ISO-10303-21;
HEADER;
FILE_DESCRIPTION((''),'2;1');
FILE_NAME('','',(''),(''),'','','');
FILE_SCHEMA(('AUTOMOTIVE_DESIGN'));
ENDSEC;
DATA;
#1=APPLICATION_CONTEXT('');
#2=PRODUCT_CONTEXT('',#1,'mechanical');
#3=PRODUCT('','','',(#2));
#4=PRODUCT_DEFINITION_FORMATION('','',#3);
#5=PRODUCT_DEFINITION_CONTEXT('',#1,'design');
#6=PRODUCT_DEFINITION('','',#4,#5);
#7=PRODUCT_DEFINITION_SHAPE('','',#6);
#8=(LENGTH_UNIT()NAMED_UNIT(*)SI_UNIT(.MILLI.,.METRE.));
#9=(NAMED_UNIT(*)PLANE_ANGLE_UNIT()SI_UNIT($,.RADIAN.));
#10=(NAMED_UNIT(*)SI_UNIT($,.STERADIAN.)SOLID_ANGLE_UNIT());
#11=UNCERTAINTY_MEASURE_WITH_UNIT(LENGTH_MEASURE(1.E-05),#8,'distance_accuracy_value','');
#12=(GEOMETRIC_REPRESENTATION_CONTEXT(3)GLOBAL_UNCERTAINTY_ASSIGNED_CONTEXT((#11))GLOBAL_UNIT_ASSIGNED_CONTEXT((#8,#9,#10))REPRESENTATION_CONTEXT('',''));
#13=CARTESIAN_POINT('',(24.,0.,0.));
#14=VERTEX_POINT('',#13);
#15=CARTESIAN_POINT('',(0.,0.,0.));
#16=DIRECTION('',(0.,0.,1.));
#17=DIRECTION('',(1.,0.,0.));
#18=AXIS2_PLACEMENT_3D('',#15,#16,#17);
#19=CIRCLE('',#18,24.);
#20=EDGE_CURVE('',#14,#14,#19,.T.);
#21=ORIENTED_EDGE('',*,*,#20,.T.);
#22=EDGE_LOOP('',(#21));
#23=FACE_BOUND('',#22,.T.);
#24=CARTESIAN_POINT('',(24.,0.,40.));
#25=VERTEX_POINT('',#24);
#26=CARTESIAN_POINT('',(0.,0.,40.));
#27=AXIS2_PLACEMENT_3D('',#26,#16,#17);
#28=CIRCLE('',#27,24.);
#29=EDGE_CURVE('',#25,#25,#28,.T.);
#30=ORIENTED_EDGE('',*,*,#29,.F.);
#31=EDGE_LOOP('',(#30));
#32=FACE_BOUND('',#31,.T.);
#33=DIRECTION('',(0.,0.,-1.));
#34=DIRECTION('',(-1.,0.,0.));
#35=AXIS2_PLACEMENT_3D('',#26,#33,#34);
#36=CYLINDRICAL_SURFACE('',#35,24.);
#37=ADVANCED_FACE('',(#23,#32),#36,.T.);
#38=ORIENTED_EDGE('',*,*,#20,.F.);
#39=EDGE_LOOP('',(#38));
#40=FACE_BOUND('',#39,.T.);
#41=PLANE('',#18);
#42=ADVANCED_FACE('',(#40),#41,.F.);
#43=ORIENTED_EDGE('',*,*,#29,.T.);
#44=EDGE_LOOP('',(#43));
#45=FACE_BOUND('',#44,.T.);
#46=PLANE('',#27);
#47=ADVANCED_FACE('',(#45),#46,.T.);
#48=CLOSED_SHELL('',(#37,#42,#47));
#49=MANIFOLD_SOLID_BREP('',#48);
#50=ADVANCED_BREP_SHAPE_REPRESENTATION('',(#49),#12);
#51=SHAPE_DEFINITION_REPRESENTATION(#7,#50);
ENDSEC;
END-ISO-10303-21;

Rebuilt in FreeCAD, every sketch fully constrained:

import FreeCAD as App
import Part
import Sketcher
Q = App.Units.Quantity

doc = App.newDocument("Part")
body = doc.addObject("PartDesign::Body", "Body")

sketch1 = body.newObject("Sketcher::SketchObject", "Sketch")
sketch1.AttachmentSupport = (doc.getObject("XY_Plane"), [""])
sketch1.MapMode = "FlatFace"
sketch1.addGeometry(Part.Circle(App.Vector(0, 0, 0), App.Vector(0, 0, 1), 24), False)
sketch1.addConstraint(Sketcher.Constraint("Coincident", 0, 3, -1, 1))
sketch1.addConstraint(Sketcher.Constraint("Diameter", 0, Q("48 mm")))
pad1 = body.newObject("PartDesign::Pad", "Pad")
pad1.Profile = sketch1
pad1.Length = 40

doc.recompute()
